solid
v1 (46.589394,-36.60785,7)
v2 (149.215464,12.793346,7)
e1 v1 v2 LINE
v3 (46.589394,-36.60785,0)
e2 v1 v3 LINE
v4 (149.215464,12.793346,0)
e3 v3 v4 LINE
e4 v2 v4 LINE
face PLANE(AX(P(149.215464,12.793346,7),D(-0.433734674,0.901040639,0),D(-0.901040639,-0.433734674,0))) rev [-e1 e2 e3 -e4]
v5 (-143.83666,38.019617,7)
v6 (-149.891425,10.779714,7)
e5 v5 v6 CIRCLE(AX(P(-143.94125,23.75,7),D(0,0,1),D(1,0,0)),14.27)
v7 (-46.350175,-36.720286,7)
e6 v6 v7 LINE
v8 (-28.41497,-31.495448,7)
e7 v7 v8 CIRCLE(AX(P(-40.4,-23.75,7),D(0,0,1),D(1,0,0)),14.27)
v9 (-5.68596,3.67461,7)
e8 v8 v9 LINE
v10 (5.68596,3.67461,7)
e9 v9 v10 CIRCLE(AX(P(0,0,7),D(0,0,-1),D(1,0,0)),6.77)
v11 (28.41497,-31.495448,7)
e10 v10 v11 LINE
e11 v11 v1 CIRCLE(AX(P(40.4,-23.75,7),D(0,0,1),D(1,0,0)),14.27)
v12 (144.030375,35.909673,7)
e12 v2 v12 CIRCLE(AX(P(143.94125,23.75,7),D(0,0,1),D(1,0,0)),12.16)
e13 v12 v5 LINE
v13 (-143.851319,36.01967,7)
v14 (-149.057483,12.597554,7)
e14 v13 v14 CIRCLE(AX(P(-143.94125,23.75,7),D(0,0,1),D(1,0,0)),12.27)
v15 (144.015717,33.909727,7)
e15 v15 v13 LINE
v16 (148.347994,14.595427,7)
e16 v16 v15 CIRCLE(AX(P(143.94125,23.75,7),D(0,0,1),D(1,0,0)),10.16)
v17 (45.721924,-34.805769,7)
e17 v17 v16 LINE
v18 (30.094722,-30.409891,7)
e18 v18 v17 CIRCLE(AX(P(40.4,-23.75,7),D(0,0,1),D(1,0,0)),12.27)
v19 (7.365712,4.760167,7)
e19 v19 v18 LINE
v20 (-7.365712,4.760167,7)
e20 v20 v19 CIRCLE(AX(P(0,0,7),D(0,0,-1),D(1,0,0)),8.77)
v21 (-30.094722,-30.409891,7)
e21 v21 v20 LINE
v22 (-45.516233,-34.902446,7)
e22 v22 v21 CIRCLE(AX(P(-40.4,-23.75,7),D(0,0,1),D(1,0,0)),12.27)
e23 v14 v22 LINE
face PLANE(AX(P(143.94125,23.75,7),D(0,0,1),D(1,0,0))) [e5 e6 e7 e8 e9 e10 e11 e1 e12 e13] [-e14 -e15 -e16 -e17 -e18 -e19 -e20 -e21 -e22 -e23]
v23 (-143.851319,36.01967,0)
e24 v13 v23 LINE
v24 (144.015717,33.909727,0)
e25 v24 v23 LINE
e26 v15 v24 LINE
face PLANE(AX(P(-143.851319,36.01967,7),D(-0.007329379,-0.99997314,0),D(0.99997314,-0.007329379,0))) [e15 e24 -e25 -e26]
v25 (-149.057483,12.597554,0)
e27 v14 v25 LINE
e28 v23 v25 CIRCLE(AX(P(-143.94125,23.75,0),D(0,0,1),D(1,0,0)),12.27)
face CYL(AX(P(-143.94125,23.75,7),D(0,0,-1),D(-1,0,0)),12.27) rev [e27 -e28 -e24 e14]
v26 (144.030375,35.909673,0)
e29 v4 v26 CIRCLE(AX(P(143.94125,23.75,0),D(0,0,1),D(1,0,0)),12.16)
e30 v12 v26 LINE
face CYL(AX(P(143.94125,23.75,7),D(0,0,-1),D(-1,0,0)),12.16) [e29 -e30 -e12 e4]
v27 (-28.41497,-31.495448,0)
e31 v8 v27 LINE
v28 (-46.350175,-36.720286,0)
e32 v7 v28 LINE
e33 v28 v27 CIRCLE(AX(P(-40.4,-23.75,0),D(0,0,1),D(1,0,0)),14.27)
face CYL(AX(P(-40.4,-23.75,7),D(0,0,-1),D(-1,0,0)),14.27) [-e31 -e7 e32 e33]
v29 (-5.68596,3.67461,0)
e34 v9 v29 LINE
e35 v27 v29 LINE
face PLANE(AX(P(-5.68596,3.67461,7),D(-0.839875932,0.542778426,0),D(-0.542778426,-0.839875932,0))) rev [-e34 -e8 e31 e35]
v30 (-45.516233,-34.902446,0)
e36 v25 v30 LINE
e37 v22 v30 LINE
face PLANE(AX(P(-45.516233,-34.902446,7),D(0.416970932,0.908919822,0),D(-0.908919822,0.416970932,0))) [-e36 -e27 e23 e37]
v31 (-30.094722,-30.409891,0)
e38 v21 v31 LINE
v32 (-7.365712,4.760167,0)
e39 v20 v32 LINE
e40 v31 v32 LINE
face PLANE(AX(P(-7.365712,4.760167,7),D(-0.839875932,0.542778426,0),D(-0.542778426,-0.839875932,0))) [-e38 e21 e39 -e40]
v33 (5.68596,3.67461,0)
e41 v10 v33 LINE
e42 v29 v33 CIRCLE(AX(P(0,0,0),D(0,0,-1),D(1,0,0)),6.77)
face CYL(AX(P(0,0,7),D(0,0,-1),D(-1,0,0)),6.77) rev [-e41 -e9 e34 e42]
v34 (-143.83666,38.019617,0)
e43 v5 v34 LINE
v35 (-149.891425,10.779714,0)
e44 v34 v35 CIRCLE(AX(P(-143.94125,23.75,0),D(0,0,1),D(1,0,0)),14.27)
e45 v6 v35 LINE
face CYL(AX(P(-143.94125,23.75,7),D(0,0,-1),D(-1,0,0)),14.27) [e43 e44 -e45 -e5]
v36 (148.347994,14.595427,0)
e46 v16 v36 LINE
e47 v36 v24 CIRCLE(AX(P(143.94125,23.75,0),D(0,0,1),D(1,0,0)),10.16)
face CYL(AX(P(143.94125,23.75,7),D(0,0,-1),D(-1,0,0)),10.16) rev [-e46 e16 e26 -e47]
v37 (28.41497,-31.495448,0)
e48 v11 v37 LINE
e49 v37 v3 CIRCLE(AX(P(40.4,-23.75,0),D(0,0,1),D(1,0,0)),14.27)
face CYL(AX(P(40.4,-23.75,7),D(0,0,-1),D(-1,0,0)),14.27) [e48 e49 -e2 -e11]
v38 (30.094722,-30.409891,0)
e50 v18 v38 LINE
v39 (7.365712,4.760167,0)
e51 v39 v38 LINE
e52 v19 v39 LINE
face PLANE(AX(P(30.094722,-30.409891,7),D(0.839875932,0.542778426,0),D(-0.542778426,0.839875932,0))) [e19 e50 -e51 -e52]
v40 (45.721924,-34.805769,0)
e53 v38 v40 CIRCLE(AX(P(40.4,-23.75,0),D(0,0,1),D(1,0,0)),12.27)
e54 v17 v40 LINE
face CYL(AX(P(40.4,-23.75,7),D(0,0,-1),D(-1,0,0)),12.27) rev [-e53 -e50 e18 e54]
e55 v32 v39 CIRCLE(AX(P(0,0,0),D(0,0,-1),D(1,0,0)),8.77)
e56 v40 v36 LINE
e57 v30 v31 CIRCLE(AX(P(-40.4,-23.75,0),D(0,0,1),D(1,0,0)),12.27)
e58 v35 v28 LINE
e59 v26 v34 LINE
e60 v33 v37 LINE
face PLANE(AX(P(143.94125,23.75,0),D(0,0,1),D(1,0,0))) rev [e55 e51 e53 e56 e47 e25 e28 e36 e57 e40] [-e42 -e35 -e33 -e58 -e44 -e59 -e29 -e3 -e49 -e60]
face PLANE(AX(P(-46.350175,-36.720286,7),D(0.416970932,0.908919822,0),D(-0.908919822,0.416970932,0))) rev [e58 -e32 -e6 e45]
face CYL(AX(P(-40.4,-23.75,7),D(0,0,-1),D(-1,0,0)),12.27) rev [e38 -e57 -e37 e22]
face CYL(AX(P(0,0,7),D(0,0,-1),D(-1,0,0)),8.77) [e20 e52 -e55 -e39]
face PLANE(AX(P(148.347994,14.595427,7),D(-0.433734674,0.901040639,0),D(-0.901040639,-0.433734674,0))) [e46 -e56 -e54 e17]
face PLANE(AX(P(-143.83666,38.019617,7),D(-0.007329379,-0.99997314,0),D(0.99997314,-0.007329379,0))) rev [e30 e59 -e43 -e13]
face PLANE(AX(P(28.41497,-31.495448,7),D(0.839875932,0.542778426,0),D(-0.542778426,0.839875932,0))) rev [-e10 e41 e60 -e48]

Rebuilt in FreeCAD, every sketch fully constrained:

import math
import FreeCAD as App
import Part
import Sketcher
from FreeCAD import Vector
Q = App.Units.Quantity

doc = App.newDocument("Part")
body = doc.addObject("PartDesign::Body", "Body")

sketch1 = body.newObject("Sketcher::SketchObject", "Sketch")
sketch1.AttachmentSupport = (doc.getObject("XY_Plane"), [""])
sketch1.MapMode = "FlatFace"
sketch1.addGeometry([
    Part.LineSegment(Vector(47, -37, 0), Vector(149, 13, 0)),
    Part.ArcOfCircle(Part.Circle(Vector(144, 24, 0), Vector(0, 0, 1), 12), math.radians(-64), math.radians(90)),
    Part.LineSegment(Vector(144, 36, 0), Vector(-144, 38, 0)),
    Part.ArcOfCircle(Part.Circle(Vector(-144, 24, 0), Vector(0, 0, 1), 14), math.radians(90), math.radians(245)),
    Part.LineSegment(Vector(-150, 11, 0), Vector(-46, -37, 0)),
    Part.ArcOfCircle(Part.Circle(Vector(-40, -24, 0), Vector(0, 0, 1), 14), math.radians(-115), math.radians(-33)),
    Part.LineSegment(Vector(-28, -31, 0), Vector(-6, 4, 0)),
    Part.ArcOfCircle(Part.Circle(Vector(0, 0, 0), Vector(0, 0, 1), 7), math.radians(33), math.radians(147)),
    Part.LineSegment(Vector(6, 4, 0), Vector(28, -31, 0)),
    Part.ArcOfCircle(Part.Circle(Vector(40, -24, 0), Vector(0, 0, 1), 14), math.radians(-147), math.radians(-64)),
    Part.LineSegment(Vector(-144, 36, 0), Vector(144, 34, 0)),
    Part.ArcOfCircle(Part.Circle(Vector(144, 24, 0), Vector(0, 0, 1), 10), math.radians(-64), math.radians(90)),
    Part.LineSegment(Vector(148, 15, 0), Vector(46, -35, 0)),
    Part.ArcOfCircle(Part.Circle(Vector(40, -24, 0), Vector(0, 0, 1), 12), math.radians(-147), math.radians(-64)),
    Part.LineSegment(Vector(30, -30, 0), Vector(7, 5, 0)),
    Part.ArcOfCircle(Part.Circle(Vector(0, 0, 0), Vector(0, 0, 1), 9), math.radians(33), math.radians(147)),
    Part.LineSegment(Vector(-7, 5, 0), Vector(-30, -30, 0)),
    Part.ArcOfCircle(Part.Circle(Vector(-40, -24, 0), Vector(0, 0, 1), 12), math.radians(-115), math.radians(-33)),
    Part.LineSegment(Vector(-46, -35, 0), Vector(-149, 13, 0)),
    Part.ArcOfCircle(Part.Circle(Vector(-144, 24, 0), Vector(0, 0, 1), 12), math.radians(90), math.radians(245)),
], False)
sketch1.addConstraint([
    Sketcher.Constraint("Tangent", 0, 2, 1, 1),
    Sketcher.Constraint("Tangent", 1, 2, 2, 1),
    Sketcher.Constraint("Tangent", 2, 2, 3, 1),
    Sketcher.Constraint("Tangent", 3, 2, 4, 1),
    Sketcher.Constraint("Tangent", 4, 2, 5, 1),
    Sketcher.Constraint("Tangent", 5, 2, 6, 1),
    Sketcher.Constraint("Tangent", 6, 2, 7, 2),
    Sketcher.Constraint("Tangent", 7, 1, 8, 1),
    Sketcher.Constraint("Tangent", 8, 2, 9, 1),
    Sketcher.Constraint("Tangent", 9, 2, 0, 1),
    Sketcher.Constraint("Tangent", 10, 2, 11, 2),
    Sketcher.Constraint("Tangent", 11, 1, 12, 1),
    Sketcher.Constraint("Tangent", 12, 2, 13, 2),
    Sketcher.Constraint("Tangent", 13, 1, 14, 1),
    Sketcher.Constraint("Tangent", 14, 2, 15, 1),
    Sketcher.Constraint("Tangent", 15, 2, 16, 1),
    Sketcher.Constraint("Tangent", 16, 2, 17, 2),
    Sketcher.Constraint("Tangent", 17, 1, 18, 1),
    Sketcher.Constraint("Tangent", 18, 2, 19, 2),
    Sketcher.Constraint("Tangent", 19, 1, 10, 1),
    Sketcher.Constraint("Coincident", 7, 3, -1, 1),
    Sketcher.Constraint("Coincident", 15, 3, -1, 1),
    Sketcher.Constraint("Coincident", 11, 3, 1, 3),
    Sketcher.Constraint("Coincident", 13, 3, 9, 3),
    Sketcher.Constraint("Coincident", 17, 3, 5, 3),
    Sketcher.Constraint("Coincident", 19, 3, 3, 3),
    Sketcher.Constraint("Equal", 3, 5),
    Sketcher.Constraint("Equal", 5, 9),
    Sketcher.Constraint("Equal", 13, 17),
    Sketcher.Constraint("Equal", 17, 19),
    Sketcher.Constraint("Symmetric", 1, 3, 3, 3, -2),
    Sketcher.Constraint("Symmetric", 5, 3, 9, 3, -2),
    Sketcher.Constraint("Parallel", 2, 10),
    Sketcher.Constraint("Parallel", 8, 14),
    Sketcher.Constraint("Radius", 1, Q("12.16 mm")),
    Sketcher.Constraint("Radius", 3, Q("14.27 mm")),
    Sketcher.Constraint("Radius", 7, Q("6.77 mm")),
    Sketcher.Constraint("Radius", 11, Q("10.16 mm")),
    Sketcher.Constraint("DistanceX", 5, 3, -1, 1, Q("40.4 mm")),
    Sketcher.Constraint("DistanceY", 5, 3, 3, 3, Q("47.5 mm")),
    Sketcher.Constraint("DistanceY", -1, 1, 1, 3, Q("23.75 mm")),
    Sketcher.Constraint("DistanceX", 3, 3, 1, 3, Q("287.8825 mm")),
])
pad1 = body.newObject("PartDesign::Pad", "Pad")
pad1.Profile = sketch1
pad1.Length = 7

doc.recompute()
